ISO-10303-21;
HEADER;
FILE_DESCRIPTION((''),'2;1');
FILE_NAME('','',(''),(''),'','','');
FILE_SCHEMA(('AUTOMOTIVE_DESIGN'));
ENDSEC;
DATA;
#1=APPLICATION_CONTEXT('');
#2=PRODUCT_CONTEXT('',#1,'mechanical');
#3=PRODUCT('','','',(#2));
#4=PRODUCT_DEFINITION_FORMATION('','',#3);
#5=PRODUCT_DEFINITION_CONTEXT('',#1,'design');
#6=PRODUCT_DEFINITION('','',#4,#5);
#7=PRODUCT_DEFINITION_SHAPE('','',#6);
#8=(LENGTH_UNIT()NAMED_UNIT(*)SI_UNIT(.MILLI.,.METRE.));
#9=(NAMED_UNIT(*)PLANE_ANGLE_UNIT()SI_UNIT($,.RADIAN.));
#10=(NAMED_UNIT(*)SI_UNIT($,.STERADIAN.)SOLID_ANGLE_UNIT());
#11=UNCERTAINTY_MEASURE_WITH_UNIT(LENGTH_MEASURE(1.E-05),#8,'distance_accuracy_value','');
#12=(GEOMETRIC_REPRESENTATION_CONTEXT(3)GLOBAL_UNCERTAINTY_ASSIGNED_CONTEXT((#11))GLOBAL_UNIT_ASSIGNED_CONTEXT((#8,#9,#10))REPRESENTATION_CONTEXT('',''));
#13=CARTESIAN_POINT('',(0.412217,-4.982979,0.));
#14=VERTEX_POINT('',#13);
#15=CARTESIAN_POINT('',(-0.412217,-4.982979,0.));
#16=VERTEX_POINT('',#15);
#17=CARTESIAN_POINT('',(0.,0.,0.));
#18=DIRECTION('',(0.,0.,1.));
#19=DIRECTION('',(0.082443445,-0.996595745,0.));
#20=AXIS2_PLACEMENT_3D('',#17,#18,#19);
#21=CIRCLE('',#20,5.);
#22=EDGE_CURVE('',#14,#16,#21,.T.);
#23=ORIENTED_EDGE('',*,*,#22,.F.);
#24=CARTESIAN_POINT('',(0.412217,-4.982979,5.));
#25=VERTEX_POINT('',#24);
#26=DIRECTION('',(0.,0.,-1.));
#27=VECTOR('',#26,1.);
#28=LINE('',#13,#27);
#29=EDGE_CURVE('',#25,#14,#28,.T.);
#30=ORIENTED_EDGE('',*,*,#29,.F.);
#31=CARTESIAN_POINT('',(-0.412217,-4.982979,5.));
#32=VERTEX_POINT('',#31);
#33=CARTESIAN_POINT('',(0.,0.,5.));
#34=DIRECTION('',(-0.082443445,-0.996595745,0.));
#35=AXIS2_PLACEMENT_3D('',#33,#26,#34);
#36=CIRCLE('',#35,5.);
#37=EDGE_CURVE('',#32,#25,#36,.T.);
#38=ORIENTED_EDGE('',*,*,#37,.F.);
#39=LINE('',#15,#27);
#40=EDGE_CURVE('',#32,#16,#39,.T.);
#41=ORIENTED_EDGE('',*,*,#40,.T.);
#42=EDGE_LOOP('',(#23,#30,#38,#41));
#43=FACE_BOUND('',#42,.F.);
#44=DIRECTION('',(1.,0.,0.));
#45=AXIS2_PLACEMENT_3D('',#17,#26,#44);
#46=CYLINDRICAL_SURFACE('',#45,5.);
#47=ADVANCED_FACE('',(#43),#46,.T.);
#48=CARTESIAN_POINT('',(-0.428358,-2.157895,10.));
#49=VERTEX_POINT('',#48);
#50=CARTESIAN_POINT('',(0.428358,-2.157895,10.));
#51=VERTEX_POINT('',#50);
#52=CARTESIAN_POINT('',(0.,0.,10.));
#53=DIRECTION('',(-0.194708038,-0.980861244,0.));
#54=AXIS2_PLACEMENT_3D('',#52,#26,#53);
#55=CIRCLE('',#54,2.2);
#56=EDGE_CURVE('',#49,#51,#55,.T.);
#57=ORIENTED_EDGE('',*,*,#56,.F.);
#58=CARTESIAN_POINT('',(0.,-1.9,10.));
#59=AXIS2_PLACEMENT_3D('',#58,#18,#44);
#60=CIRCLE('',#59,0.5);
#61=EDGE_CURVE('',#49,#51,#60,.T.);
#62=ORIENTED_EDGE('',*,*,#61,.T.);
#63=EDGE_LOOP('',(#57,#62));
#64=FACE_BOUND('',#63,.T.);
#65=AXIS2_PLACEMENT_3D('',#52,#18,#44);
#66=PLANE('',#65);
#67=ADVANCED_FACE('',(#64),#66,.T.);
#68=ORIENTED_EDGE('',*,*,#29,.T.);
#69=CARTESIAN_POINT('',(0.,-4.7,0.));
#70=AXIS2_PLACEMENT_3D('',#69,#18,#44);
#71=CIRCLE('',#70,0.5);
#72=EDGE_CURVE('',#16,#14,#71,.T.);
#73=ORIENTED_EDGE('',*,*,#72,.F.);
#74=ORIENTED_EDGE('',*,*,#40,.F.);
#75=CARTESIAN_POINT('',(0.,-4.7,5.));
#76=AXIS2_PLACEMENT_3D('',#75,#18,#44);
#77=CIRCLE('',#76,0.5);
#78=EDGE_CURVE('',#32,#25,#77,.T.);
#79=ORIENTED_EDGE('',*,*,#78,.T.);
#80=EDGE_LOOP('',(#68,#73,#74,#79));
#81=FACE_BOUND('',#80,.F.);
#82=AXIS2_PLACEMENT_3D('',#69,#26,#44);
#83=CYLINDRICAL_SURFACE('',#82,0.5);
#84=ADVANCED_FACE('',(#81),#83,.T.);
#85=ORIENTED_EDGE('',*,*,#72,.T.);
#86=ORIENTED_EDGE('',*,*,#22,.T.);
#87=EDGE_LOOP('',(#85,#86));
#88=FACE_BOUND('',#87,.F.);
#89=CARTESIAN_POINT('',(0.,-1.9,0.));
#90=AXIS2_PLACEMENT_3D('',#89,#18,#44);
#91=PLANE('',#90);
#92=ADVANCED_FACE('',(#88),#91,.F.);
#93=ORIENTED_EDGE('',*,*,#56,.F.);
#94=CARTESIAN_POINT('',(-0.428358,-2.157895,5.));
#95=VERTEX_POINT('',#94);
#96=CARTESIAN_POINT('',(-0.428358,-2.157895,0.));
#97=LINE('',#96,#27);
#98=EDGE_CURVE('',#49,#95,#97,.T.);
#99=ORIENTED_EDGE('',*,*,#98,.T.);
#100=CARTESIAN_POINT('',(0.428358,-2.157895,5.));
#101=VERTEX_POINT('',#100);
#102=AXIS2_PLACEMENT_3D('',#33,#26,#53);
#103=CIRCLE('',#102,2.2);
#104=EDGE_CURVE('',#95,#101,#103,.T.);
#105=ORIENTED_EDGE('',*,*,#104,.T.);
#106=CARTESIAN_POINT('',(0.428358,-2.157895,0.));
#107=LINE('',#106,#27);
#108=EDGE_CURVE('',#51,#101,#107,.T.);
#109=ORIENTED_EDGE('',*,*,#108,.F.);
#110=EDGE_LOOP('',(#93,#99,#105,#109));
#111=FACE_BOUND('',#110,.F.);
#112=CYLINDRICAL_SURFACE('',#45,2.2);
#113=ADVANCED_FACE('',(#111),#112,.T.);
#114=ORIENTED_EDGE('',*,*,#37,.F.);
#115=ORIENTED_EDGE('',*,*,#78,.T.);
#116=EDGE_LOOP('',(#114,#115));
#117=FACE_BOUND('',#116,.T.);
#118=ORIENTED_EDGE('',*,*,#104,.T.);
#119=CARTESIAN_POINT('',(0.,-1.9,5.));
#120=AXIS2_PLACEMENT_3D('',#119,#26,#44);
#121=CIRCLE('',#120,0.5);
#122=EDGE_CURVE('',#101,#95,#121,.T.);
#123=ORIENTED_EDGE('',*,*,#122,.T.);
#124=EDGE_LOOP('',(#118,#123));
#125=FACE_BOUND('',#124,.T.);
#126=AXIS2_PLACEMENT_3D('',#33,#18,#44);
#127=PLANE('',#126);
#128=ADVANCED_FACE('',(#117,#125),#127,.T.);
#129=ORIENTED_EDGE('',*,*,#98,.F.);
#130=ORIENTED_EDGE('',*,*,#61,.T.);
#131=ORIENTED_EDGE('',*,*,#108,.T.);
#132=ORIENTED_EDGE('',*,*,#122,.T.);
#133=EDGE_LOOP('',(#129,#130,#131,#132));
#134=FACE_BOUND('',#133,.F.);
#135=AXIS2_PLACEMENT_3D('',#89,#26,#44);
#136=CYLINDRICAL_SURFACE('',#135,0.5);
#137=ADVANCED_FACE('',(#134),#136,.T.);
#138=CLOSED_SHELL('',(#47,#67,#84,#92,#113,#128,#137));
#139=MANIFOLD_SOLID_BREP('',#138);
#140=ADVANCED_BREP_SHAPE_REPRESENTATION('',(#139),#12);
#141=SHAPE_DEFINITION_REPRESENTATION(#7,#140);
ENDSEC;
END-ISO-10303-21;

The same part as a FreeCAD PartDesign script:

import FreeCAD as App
import Part
import Sketcher
from FreeCAD import Vector
Q = App.Units.Quantity

doc = App.newDocument("Part")
body = doc.addObject("PartDesign::Body", "Body")

sketch1 = doc.addObject("Sketcher::SketchObject", "Sketch")
body.addObject(sketch1)
sketch1.AttachmentSupport = (doc.XY_Plane, [""])
sketch1.MapMode = "FlatFace"
sketch1.addGeometry(Part.Circle(Vector(0, 0, 0), Vector(0, 0, 1), 5), False)
sketch1.addConstraint([
    Sketcher.Constraint("Coincident", 0, 3, -1, 1),
    Sketcher.Constraint("Diameter", 0, Q("10 mm")),
])
pad1 = doc.addObject("PartDesign::Pad", "Pad")
body.addObject(pad1)
pad1.Profile = sketch1
pad1.Length = 5
body2 = doc.addObject("PartDesign::Body", "Body001")

sketch2 = doc.addObject("Sketcher::SketchObject", "Sketch001")
body2.addObject(sketch2)
sketch2.AttachmentSupport = (doc.getObject("XY_Plane001"), [""])
sketch2.MapMode = "FlatFace"
sketch2.addGeometry(Part.Circle(Vector(0, 0, 0), Vector(0, 0, 1), 2.2), False)
sketch2.addConstraint([
    Sketcher.Constraint("Coincident", 0, 3, -1, 1),
    Sketcher.Constraint("Diameter", 0, Q("4.4 mm")),
])
pad2 = doc.addObject("PartDesign::Pad", "Pad001")
body2.addObject(pad2)
pad2.Profile = sketch2
pad2.Length = 10
body3 = doc.addObject("PartDesign::Body", "Body002")

sketch3 = doc.addObject("Sketcher::SketchObject", "Sketch002")
body3.addObject(sketch3)
sketch3.AttachmentSupport = (doc.getObject("XY_Plane002"), [""])
sketch3.MapMode = "FlatFace"
sketch3.addGeometry(Part.Circle(Vector(0, -1.9, 0), Vector(0, 0, 1), 0.5), False)
sketch3.addConstraint([
    Sketcher.Constraint("PointOnObject", 0, 3, -2),
    Sketcher.Constraint("Diameter", 0, Q("1 mm")),
    Sketcher.Constraint("DistanceY", 0, 3, -1, 1, Q("1.9 mm")),
])
pad3 = doc.addObject("PartDesign::Pad", "Pad002")
body3.addObject(pad3)
pad3.Profile = sketch3
pad3.Length = 10
body4 = doc.addObject("PartDesign::Body", "Body003")

sketch4 = doc.addObject("Sketcher::SketchObject", "Sketch003")
body4.addObject(sketch4)
sketch4.AttachmentSupport = (doc.getObject("XY_Plane003"), [""])
sketch4.MapMode = "FlatFace"
sketch4.addGeometry(Part.Circle(Vector(0, -4.7, 0), Vector(0, 0, 1), 0.5), False)
sketch4.addConstraint([
    Sketcher.Constraint("PointOnObject", 0, 3, -2),
    Sketcher.Constraint("Diameter", 0, Q("1 mm")),
    Sketcher.Constraint("DistanceY", 0, 3, -1, 1, Q("4.7 mm")),
])
pad4 = doc.addObject("PartDesign::Pad", "Pad003")
body4.addObject(pad4)
pad4.Profile = sketch4
pad4.Length = 5
doc.recompute()

boolean = doc.addObject("PartDesign::Boolean", "Boolean")
body4.addObject(boolean)
boolean.Type = "Fuse"
boolean.addObjects([body])
doc.recompute()

boolean2 = doc.addObject("PartDesign::Boolean", "Boolean001")
body4.addObject(boolean2)
boolean2.Type = "Fuse"
boolean2.addObjects([body2])
doc.recompute()

boolean3 = doc.addObject("PartDesign::Boolean", "Boolean002")
body4.addObject(boolean3)
boolean3.Type = "Fuse"
boolean3.addObjects([body3])

doc.recompute()
